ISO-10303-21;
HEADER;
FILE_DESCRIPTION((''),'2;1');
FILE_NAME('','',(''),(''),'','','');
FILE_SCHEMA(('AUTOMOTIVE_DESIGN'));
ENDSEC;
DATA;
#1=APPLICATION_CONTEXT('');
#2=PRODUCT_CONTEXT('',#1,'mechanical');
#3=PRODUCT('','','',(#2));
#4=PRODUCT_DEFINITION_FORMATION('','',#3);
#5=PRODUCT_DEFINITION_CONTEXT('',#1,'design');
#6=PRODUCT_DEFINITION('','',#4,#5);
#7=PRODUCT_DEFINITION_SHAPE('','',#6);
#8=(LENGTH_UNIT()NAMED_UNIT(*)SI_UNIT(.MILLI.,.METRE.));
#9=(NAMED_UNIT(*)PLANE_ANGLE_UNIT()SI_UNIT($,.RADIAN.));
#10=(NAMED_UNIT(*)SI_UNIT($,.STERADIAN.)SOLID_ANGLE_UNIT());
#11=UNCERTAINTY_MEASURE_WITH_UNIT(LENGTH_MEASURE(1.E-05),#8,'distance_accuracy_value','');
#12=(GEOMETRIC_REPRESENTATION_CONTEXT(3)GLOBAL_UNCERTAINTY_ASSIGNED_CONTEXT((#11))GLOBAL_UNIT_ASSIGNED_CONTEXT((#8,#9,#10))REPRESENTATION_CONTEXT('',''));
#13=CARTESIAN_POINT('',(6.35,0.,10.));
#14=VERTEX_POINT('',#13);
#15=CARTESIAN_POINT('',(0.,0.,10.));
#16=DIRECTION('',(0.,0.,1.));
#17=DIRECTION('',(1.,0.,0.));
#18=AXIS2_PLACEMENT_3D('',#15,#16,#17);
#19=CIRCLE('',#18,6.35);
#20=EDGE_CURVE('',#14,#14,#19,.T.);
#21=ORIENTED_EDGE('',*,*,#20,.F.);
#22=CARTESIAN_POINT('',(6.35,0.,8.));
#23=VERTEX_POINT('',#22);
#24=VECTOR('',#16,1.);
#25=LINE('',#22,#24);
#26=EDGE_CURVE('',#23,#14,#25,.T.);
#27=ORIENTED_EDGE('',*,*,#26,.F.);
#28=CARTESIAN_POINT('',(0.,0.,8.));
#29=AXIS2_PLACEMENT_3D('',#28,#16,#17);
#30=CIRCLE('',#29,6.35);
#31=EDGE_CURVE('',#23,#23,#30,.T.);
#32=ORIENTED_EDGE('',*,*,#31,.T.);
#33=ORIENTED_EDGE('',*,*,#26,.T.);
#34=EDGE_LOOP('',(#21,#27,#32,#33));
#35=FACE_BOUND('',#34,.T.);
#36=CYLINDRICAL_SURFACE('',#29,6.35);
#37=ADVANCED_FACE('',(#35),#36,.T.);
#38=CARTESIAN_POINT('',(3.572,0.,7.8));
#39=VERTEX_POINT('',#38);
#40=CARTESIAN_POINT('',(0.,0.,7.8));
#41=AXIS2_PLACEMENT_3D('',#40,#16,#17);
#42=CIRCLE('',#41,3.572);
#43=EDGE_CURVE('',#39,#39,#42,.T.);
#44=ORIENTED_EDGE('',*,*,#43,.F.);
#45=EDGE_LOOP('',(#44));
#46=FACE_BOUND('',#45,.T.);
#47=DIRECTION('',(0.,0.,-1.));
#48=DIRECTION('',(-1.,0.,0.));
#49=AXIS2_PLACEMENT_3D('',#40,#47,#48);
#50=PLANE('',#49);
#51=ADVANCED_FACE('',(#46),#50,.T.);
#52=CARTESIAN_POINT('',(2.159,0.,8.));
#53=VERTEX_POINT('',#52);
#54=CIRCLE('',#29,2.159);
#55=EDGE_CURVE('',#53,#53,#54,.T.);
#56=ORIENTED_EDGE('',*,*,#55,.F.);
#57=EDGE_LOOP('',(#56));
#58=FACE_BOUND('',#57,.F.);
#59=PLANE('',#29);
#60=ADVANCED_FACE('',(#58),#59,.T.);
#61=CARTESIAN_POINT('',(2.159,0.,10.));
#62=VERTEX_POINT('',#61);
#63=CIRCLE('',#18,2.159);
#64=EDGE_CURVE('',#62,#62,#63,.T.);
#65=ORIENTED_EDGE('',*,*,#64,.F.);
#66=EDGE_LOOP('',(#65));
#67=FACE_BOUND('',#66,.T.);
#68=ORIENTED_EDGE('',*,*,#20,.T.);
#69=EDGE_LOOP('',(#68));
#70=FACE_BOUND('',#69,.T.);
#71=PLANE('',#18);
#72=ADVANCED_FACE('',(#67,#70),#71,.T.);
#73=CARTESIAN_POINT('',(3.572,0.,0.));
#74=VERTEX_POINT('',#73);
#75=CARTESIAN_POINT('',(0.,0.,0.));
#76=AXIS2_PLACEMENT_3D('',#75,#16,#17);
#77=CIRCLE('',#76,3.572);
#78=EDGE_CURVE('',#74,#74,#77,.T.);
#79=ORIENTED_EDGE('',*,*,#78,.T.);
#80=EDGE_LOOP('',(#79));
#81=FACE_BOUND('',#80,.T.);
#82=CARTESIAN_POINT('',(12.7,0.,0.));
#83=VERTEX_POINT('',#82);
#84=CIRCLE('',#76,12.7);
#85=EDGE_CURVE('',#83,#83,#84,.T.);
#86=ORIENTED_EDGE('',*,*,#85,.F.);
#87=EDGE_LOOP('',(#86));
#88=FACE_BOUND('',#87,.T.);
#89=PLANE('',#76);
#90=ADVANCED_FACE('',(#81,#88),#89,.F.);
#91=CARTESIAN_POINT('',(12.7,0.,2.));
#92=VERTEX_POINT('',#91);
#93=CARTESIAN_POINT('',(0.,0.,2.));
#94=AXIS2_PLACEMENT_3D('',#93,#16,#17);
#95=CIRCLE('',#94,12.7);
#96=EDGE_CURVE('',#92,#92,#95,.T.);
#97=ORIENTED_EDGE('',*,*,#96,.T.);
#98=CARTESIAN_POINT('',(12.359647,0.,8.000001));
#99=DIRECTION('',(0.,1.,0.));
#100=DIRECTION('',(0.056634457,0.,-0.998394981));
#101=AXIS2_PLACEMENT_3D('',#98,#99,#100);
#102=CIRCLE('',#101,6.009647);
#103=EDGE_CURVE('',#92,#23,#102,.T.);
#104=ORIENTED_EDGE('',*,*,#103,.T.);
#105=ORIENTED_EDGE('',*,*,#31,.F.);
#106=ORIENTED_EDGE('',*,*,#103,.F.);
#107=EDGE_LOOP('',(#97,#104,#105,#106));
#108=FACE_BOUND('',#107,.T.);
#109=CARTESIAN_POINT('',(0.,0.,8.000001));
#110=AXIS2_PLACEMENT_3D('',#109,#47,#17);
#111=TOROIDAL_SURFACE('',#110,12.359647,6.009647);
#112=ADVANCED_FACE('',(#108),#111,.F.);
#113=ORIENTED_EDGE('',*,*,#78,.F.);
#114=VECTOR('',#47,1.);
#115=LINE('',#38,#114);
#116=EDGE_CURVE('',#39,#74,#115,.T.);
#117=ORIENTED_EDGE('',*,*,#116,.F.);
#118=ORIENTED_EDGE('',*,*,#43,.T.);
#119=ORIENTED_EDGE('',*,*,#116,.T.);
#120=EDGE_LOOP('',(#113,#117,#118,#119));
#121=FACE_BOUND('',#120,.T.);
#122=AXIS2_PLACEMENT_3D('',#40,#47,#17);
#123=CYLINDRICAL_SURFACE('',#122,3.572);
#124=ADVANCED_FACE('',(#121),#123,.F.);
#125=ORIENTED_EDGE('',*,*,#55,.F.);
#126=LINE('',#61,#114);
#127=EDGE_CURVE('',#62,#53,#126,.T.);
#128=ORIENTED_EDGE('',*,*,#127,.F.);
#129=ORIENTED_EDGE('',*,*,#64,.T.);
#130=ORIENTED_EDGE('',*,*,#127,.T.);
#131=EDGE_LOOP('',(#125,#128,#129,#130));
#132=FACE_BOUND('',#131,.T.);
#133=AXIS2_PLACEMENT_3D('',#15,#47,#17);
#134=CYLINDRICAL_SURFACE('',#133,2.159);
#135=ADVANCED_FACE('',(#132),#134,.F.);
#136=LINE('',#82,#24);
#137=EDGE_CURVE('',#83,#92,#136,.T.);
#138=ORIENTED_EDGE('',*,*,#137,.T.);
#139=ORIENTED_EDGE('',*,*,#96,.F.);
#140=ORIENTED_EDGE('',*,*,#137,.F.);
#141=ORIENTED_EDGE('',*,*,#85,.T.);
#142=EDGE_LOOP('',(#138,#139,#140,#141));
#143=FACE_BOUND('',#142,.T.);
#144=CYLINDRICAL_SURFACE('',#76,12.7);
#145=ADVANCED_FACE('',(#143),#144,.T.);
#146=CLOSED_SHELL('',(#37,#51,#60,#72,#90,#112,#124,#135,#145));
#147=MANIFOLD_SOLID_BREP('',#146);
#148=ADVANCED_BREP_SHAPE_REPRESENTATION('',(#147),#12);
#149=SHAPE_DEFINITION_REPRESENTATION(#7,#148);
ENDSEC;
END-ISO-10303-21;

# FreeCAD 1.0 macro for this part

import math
import FreeCAD as App
import Part
import Sketcher

doc = App.newDocument("Part")
body = doc.addObject("PartDesign::Body", "Body")

sketch1 = doc.addObject("Sketcher::SketchObject", "Sketch")
body.addObject(sketch1)
sketch1.AttachmentSupport = (doc.XZ_Plane, [""])
sketch1.MapMode = "FlatFace"
sketch1.addGeometry([
    Part.LineSegment(App.Vector(3.57, 7.8, 0), App.Vector(3.57, 0, 0)),
    Part.LineSegment(App.Vector(3.57, 0, 0), App.Vector(12.7, 0, 0)),
    Part.LineSegment(App.Vector(12.7, 0, 0), App.Vector(12.7, 2, 0)),
    Part.ArcOfCircle(Part.Circle(App.Vector(12.36, 8, 0), App.Vector(0, 0, 1), 6.01), math.radians(-180), math.radians(-87)),
    Part.LineSegment(App.Vector(6.35, 8, 0), App.Vector(6.35, 10, 0)),
    Part.LineSegment(App.Vector(6.35, 10, 0), App.Vector(2.16, 10, 0)),
    Part.LineSegment(App.Vector(2.16, 10, 0), App.Vector(2.16, 8, 0)),
    Part.LineSegment(App.Vector(2.16, 8, 0), App.Vector(0, 8, 0)),
    Part.LineSegment(App.Vector(0, 8, 0), App.Vector(0, 7.8, 0)),
    Part.LineSegment(App.Vector(0, 7.8, 0), App.Vector(3.57, 7.8, 0)),
], False)
sketch1.addConstraint([
    Sketcher.Constraint("Coincident", 0, 2, 1, 1),
    Sketcher.Constraint("Coincident", 1, 2, 2, 1),
    Sketcher.Constraint("Coincident", 2, 2, 3, 2),
    Sketcher.Constraint("Tangent", 3, 1, 4, 1),
    Sketcher.Constraint("Coincident", 4, 2, 5, 1),
    Sketcher.Constraint("Coincident", 5, 2, 6, 1),
    Sketcher.Constraint("Coincident", 6, 2, 7, 1),
    Sketcher.Constraint("Coincident", 7, 2, 8, 1),
    Sketcher.Constraint("Coincident", 8, 2, 9, 1),
    Sketcher.Constraint("Coincident", 9, 2, 0, 1),
    Sketcher.Constraint("Vertical", 0),
    Sketcher.Constraint("Horizontal", 1),
    Sketcher.Constraint("Vertical", 2),
    Sketcher.Constraint("Vertical", 4),
    Sketcher.Constraint("Horizontal", 5),
    Sketcher.Constraint("Vertical", 6),
    Sketcher.Constraint("Horizontal", 7),
    Sketcher.Constraint("Vertical", 8),
    Sketcher.Constraint("Horizontal", 9),
    Sketcher.Constraint("PointOnObject", 0, 2, -1),
    Sketcher.Constraint("PointOnObject", 7, 2, -2),
    Sketcher.Constraint("Horizontal", 3, 1, 6, 2),
    Sketcher.Constraint("Equal", 2, 4),
    Sketcher.Constraint("DistanceY", 2, 1, 2, 2, 2.0),
    Sketcher.Constraint("DistanceY", 0, 2, 0, 1, 7.8),
    Sketcher.Constraint("DistanceY", 8, 2, 8, 1, 0.2),
    Sketcher.Constraint("DistanceX", -1, 1, 1, 2, 12.7),
    Sketcher.Constraint("DistanceX", 1, 1, 1, 2, 9.128),
    Sketcher.Constraint("DistanceX", 5, 2, 5, 1, 4.191),
    Sketcher.Constraint("DistanceX", 7, 2, 7, 1, 2.159),
])
revolution = doc.addObject("PartDesign::Revolution", "Revolution")
body.addObject(revolution)
revolution.Profile = sketch1
revolution.ReferenceAxis = (sketch1, ["V_Axis"])
revolution.Angle = 360

doc.recompute()
